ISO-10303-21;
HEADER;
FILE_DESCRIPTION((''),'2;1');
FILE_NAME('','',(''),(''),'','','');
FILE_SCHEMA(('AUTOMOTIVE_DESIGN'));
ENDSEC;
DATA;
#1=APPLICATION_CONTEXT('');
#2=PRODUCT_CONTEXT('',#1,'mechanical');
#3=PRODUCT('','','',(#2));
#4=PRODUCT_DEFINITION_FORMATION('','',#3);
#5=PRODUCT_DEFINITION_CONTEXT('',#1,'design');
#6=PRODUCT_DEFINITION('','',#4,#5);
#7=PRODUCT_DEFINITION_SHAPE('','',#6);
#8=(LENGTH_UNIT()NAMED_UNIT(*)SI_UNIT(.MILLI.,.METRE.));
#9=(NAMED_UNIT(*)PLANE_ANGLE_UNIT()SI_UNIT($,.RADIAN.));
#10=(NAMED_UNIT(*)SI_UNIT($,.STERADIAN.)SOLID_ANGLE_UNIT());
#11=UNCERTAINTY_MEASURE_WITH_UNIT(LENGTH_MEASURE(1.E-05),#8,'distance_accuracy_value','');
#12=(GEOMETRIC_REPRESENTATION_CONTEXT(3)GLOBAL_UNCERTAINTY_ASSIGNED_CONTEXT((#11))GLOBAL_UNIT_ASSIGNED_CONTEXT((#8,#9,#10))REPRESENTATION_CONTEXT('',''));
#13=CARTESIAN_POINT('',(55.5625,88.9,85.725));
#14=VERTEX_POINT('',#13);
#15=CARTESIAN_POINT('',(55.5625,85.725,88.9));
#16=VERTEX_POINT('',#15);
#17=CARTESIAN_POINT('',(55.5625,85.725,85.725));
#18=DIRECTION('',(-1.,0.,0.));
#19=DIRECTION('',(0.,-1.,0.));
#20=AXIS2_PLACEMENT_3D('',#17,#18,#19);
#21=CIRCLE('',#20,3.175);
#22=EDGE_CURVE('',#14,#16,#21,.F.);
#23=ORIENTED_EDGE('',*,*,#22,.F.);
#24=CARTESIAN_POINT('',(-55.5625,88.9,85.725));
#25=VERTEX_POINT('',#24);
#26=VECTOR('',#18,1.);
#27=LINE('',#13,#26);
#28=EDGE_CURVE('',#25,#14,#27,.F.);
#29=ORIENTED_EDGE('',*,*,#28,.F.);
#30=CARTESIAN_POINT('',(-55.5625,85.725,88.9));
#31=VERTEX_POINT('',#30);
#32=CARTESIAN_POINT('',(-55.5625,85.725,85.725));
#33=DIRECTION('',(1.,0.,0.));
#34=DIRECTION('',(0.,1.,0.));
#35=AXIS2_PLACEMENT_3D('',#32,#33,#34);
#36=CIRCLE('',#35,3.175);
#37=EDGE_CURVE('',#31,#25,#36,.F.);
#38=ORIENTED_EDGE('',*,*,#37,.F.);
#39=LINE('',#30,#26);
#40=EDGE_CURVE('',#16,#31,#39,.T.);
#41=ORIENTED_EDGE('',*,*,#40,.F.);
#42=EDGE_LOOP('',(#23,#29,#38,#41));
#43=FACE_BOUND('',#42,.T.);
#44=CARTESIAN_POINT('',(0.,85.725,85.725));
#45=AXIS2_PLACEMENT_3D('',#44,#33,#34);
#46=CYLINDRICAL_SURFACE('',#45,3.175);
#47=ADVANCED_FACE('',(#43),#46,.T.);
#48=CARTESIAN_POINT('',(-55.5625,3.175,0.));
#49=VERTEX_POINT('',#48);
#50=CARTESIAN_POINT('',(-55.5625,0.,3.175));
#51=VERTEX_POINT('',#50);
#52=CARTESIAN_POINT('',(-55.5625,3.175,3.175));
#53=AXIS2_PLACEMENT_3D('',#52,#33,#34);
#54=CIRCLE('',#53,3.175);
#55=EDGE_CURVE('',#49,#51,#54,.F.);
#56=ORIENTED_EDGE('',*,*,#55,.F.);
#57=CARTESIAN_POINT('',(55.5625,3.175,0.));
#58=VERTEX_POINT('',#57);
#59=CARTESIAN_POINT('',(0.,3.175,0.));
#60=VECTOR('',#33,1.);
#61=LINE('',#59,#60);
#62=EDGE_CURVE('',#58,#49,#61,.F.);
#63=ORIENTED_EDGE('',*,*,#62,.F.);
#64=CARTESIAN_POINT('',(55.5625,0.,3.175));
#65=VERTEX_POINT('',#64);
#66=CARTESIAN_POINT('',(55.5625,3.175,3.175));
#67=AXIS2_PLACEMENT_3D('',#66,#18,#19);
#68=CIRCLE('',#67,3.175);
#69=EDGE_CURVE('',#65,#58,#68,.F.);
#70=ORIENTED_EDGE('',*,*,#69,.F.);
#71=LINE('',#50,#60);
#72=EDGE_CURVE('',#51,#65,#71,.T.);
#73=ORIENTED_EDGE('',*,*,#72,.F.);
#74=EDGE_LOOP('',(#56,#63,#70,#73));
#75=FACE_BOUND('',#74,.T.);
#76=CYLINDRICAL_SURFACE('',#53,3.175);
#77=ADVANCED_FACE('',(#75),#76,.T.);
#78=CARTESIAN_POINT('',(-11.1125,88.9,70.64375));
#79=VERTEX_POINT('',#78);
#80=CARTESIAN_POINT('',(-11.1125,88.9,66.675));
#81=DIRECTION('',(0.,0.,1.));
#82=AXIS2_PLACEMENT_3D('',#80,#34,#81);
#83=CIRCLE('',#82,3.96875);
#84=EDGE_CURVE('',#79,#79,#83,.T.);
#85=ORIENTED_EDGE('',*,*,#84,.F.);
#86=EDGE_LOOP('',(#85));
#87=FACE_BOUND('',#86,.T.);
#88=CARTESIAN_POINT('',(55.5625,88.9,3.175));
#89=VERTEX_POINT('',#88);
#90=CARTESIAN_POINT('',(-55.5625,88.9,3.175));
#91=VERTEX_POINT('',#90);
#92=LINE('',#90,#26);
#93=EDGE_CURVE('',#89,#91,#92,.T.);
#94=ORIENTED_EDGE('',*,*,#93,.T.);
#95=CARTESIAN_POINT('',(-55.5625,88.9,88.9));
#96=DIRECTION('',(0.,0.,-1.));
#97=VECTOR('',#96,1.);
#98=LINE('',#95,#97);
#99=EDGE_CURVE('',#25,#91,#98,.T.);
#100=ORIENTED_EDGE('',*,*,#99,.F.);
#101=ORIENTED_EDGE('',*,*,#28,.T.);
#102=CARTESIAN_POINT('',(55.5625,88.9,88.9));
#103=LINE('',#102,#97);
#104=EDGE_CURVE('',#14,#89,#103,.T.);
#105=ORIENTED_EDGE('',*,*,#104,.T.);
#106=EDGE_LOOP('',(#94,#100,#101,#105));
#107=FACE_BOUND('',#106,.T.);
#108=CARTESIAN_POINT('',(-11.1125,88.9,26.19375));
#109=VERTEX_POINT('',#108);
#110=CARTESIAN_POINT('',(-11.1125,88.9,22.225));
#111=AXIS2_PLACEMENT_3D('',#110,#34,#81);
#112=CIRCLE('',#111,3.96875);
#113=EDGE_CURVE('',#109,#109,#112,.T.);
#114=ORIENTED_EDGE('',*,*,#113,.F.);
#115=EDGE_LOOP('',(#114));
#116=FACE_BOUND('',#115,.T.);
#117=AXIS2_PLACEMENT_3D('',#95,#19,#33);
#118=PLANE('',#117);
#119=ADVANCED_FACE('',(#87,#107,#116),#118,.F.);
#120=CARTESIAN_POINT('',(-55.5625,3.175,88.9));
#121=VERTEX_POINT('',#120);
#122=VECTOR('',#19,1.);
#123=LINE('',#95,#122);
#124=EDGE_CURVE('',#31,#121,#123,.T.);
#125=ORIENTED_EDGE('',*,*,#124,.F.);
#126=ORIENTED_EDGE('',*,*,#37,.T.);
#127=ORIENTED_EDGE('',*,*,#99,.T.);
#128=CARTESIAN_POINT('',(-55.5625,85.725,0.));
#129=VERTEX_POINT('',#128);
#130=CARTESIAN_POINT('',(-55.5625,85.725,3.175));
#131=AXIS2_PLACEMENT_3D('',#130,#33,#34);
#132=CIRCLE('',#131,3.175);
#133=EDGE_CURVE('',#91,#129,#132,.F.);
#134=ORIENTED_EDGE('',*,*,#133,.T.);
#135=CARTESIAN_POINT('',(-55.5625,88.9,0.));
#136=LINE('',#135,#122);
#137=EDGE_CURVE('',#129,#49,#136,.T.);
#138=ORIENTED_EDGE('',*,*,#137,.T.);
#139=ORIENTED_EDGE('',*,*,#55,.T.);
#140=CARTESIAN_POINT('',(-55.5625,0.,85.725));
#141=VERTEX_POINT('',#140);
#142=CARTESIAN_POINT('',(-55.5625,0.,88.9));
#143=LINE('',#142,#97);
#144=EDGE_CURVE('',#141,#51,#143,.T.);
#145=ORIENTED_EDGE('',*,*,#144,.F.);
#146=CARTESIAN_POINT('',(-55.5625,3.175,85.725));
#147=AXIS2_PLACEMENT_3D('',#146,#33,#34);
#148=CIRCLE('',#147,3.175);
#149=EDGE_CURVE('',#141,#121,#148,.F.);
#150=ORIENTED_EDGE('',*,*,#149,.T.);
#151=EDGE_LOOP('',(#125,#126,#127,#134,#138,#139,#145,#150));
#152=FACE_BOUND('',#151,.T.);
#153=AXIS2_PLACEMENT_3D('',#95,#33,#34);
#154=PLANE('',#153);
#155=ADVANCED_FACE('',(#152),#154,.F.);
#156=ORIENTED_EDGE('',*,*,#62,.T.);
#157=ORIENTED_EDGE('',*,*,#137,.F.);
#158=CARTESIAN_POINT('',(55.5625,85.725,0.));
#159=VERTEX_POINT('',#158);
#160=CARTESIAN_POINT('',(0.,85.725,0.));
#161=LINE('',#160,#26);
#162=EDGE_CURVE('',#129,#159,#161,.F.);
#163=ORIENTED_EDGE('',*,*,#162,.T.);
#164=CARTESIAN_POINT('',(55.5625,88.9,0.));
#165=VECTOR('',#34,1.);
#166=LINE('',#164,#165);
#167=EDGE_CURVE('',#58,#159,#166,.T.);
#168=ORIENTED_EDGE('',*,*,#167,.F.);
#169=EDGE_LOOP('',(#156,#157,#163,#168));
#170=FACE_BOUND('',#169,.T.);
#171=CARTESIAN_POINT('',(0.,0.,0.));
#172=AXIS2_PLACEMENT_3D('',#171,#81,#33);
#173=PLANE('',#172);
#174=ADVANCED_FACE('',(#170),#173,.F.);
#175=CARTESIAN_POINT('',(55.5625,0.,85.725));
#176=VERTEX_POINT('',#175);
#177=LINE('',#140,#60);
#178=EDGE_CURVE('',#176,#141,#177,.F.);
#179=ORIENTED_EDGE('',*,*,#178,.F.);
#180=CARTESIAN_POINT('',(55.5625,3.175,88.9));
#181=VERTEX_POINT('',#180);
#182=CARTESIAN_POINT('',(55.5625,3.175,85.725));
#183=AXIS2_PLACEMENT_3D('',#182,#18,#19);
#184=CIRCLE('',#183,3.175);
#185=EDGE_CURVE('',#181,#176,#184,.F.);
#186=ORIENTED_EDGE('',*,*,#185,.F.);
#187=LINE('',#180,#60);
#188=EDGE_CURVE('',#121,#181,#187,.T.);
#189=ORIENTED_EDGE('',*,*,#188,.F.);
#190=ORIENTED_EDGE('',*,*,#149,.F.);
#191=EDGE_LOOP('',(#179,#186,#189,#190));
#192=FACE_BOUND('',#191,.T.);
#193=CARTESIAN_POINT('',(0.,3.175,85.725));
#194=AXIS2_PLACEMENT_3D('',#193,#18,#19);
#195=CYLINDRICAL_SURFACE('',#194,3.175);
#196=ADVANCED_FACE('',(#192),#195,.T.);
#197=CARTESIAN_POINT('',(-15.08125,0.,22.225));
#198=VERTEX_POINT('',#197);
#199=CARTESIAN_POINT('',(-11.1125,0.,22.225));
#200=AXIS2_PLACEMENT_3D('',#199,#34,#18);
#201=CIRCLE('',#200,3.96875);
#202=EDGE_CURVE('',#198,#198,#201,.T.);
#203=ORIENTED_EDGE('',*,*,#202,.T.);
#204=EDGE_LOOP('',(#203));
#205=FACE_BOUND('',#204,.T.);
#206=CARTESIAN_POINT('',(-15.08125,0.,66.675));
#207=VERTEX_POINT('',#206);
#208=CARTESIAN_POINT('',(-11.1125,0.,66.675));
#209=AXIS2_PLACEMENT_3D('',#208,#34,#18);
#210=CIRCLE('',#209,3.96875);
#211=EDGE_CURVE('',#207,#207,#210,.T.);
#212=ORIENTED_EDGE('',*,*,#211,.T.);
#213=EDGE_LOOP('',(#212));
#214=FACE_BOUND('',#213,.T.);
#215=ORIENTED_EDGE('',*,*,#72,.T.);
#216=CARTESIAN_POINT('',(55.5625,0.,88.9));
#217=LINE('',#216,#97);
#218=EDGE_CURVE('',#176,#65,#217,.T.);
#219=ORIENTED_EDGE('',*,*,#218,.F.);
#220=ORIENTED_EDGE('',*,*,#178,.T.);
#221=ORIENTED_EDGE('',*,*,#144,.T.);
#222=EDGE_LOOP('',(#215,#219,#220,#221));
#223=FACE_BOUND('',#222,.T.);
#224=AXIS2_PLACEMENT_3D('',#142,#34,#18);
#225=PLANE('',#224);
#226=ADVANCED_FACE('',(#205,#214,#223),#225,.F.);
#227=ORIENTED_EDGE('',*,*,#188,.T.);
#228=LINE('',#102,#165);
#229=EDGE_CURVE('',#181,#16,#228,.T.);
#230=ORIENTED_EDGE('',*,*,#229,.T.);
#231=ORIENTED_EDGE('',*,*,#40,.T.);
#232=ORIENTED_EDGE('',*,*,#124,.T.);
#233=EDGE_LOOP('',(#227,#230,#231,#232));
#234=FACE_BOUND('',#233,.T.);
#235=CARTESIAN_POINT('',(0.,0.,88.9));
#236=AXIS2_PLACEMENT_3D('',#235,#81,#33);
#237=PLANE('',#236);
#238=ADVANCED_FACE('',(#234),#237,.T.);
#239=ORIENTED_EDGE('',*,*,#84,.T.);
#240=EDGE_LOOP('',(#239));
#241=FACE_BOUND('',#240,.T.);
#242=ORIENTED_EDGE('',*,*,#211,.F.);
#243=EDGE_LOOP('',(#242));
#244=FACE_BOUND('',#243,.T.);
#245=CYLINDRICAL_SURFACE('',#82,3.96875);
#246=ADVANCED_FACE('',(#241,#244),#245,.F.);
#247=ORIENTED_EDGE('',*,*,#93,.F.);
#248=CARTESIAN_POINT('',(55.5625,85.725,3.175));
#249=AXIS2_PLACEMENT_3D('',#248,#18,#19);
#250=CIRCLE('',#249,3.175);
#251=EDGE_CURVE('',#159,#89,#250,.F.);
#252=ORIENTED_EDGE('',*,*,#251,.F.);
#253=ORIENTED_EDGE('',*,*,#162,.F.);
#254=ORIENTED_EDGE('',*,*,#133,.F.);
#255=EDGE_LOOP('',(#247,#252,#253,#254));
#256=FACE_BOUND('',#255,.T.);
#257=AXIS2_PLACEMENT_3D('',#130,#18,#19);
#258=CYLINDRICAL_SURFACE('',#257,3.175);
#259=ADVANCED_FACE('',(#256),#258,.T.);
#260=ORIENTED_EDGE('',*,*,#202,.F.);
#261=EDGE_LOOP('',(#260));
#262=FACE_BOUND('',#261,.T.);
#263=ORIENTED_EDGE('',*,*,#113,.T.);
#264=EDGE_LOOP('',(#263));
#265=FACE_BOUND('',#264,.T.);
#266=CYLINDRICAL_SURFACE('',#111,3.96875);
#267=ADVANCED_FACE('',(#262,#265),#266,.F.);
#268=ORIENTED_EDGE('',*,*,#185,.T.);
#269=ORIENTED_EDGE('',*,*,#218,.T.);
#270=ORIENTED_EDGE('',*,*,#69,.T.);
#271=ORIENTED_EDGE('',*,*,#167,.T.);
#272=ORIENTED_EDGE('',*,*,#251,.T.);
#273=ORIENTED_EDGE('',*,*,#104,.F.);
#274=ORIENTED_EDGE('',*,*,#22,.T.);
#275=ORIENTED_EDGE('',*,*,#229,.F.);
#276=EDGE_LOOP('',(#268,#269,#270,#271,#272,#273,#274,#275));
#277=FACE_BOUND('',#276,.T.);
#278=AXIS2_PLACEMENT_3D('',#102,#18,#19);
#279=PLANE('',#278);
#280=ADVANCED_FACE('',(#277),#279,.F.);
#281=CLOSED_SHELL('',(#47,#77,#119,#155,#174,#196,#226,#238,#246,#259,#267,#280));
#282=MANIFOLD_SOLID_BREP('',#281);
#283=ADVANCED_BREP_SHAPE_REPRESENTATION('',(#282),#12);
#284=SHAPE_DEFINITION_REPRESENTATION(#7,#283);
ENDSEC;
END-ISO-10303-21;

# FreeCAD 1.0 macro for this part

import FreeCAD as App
import Part
import Sketcher
Q = App.Units.Quantity


def edges_at(feature, points):
    """Names of the edges that pass closest to the given points."""
    edges = feature.Shape.Edges
    near = lambda p: min(range(len(edges)), key=lambda i: edges[i].distToShape(Part.Vertex(*p))[0])
    return sorted({f"Edge{near(p) + 1}" for p in points})


def add_polygon(sketch, points):
    """Adds a closed chain of lines whose ends are joined by coincident constraints."""
    first, n = sketch.GeometryCount, len(points)
    for a, b in zip(points, points[1:] + points[:1]):
        sketch.addGeometry(Part.LineSegment(App.Vector(*a, 0), App.Vector(*b, 0)), False)
    for i in range(n):
        sketch.addConstraint(Sketcher.Constraint("Coincident", first + i, 2, first + (i + 1) % n, 1))

doc = App.newDocument("Part")
params = doc.addObject("Spreadsheet::Sheet", "Params")
for row, (alias, value) in enumerate([
    ("sketch1_height", "3.5 in"),
    ("sketch1_width", "4.375 in"),
    ("pad1_length", "3.5 in"),
    ("fillet_radius", "0.125 in"),
    ("sketch2_diameter", "0.3125 in"),
    ("hole_diameter", "0.3125 in"),
], start=1):
    params.set(f"A{row}", alias)
    params.set(f"B{row}", "=" + value)
    params.setAlias(f"B{row}", alias)

body = doc.addObject("PartDesign::Body", "Body")

sketch1 = body.newObject("Sketcher::SketchObject", "Sketch")
sketch1.AttachmentSupport = (doc.getObject("XY_Plane"), [""])
sketch1.MapMode = "FlatFace"
add_polygon(sketch1, [(-55.5625, 88.9), (-55.5625, 0), (55.5625, 0), (55.5625, 88.9)])
sketch1.addConstraint([
    Sketcher.Constraint("Vertical", 0),
    Sketcher.Constraint("Horizontal", 1),
    Sketcher.Constraint("Vertical", 2),
    Sketcher.Constraint("Horizontal", 3),
    Sketcher.Constraint("Symmetric", 0, 2, 1, 2, -1, 1),
    Sketcher.Constraint("DistanceY", 0, 2, 0, 1, Q("3.5 in")),
    Sketcher.Constraint("DistanceX", 1, 1, 1, 2, Q("4.375 in")),
])
sketch1.setExpression("Constraints[9]", "Params.sketch1_height")
sketch1.setExpression("Constraints[10]", "Params.sketch1_width")
pad1 = body.newObject("PartDesign::Pad", "Pad")
pad1.Profile = sketch1
pad1.setExpression("Length", "Params.pad1_length")
doc.recompute()

fillet = body.newObject("PartDesign::Fillet", "Fillet")
fillet.Base = (pad1, edges_at(pad1, [
    (0, 88.9, 88.9),
    (0, 88.9, 0),
    (0, 0, 0),
    (0, 0, 88.9),
]))
fillet.setExpression("Radius", "Params.fillet_radius")

sketch2 = body.newObject("Sketcher::SketchObject", "Sketch001")
sketch2.AttachmentSupport = (doc.getObject("XZ_Plane"), [""])
sketch2.MapMode = "FlatFace"
sketch2.AttachmentOffset = App.Placement(App.Vector(0, 0, -3.5 * 25.4), App.Rotation())
sketch2.addGeometry([
    Part.Circle(App.Vector(-11.1125, 22.225, 0), App.Vector(0, 0, 1), 3.96875),
    Part.Circle(App.Vector(-11.1125, 66.675, 0), App.Vector(0, 0, 1), 3.96875),
], False)
sketch2.addConstraint([
    Sketcher.Constraint("Equal", 0, 1),
    Sketcher.Constraint("Vertical", 0, 3, 1, 3),
    Sketcher.Constraint("Diameter", 0, Q("0.3125 in")),
    Sketcher.Constraint("DistanceY", 0, 3, 1, 3, Q("1.75 in")),
    Sketcher.Constraint("DistanceX", 0, 3, -1, 1, Q("0.4375 in")),
    Sketcher.Constraint("DistanceY", -1, 1, 0, 3, Q("0.875 in")),
])
sketch2.setExpression("Constraints[2]", "Params.sketch2_diameter")
doc.recompute()
hole = body.newObject("PartDesign::Hole", "Hole")
hole.Profile = sketch2
hole.ThreadType = "None"
hole.setExpression("Diameter", "Params.hole_diameter")
hole.DepthType = "ThroughAll"
hole.Reversed = True

doc.recompute()
